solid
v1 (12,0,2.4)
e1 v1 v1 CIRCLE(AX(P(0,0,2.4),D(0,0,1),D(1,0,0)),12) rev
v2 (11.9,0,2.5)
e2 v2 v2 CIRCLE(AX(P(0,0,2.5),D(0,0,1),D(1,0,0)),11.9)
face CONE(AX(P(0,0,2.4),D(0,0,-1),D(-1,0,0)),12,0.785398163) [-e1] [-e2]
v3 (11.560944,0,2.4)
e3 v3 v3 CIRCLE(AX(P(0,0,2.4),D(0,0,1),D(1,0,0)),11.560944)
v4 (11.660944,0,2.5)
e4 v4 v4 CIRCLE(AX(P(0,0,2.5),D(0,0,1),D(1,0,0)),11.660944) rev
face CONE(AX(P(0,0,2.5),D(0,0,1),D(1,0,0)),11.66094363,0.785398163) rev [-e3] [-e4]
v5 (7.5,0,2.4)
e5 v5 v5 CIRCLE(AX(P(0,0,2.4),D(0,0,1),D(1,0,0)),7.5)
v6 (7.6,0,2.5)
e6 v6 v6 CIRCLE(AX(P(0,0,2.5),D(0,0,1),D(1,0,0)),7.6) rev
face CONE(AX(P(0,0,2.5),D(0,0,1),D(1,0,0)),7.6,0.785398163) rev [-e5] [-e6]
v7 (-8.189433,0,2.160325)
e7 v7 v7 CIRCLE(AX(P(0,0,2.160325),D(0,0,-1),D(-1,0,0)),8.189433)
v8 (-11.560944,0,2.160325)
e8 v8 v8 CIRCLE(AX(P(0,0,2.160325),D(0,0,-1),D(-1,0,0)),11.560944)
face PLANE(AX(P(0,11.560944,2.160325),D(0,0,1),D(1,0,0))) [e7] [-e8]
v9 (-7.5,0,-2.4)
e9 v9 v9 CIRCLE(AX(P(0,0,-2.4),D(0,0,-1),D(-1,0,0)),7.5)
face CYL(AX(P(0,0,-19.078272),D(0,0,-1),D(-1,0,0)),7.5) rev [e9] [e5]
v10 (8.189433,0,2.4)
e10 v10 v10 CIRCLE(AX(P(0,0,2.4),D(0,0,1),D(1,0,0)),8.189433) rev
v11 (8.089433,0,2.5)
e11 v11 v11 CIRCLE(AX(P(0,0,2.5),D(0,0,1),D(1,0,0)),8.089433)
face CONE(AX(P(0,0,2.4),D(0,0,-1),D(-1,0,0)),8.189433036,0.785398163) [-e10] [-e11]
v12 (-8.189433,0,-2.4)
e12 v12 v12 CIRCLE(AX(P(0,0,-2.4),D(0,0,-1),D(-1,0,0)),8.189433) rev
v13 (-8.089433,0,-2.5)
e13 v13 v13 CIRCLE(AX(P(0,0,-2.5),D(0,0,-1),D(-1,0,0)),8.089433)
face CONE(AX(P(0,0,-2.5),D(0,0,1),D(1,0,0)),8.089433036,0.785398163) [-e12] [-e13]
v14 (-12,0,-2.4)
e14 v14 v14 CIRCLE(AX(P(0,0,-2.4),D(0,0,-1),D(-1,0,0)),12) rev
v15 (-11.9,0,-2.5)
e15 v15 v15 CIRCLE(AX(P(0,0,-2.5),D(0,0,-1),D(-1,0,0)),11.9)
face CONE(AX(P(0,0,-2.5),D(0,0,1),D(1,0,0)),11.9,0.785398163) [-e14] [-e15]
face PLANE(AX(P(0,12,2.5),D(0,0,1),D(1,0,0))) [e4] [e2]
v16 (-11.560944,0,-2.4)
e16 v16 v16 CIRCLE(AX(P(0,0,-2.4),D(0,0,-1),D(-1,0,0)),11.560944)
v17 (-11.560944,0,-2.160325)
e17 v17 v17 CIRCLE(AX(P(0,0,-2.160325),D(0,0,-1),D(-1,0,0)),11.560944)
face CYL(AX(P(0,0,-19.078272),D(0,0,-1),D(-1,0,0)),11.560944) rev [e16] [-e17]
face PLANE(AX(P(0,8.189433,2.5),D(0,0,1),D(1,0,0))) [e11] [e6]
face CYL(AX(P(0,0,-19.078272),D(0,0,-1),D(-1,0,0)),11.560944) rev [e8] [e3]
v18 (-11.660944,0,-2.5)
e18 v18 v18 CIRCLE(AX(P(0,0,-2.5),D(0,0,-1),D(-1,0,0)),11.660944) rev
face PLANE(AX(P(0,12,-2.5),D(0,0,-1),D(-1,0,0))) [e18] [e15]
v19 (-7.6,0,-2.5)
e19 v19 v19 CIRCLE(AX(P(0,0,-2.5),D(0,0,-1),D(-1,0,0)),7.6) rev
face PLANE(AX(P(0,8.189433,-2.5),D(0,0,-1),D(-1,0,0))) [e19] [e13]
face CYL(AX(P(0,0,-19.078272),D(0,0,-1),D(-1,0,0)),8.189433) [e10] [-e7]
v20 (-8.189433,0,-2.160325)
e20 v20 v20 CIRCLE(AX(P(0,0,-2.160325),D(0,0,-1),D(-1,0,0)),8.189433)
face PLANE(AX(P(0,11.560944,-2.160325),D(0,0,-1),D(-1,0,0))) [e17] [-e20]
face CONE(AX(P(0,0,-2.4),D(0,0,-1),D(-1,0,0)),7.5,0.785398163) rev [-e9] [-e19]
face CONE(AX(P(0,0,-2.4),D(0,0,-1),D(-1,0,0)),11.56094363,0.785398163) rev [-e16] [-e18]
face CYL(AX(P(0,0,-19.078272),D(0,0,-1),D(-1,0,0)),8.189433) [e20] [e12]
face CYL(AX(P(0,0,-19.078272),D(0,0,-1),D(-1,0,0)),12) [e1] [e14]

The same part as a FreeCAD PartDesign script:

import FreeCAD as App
import Part
import Sketcher

V = App.Vector
Q = App.Units.Quantity


def edges_at(feature, points):
    """Names of the edges that pass closest to the given points."""
    edges = feature.Shape.Edges
    near = lambda p: min(range(len(edges)), key=lambda i: edges[i].distToShape(Part.Vertex(*p))[0])
    return sorted({f"Edge{near(p) + 1}" for p in points})

doc = App.newDocument("Part")
body = doc.addObject("PartDesign::Body", "Body")

# Sketch on YZ plane
sketch1 = body.newObject("Sketcher::SketchObject", "Sketch")
sketch1.AttachmentSupport = (doc.getObject("YZ_Plane"), [""])
sketch1.MapMode = "FlatFace"
sketch1.addGeometry(Part.LineSegment(V(12, -2.5, 0), V(12, 2.5, 0)), False)
sketch1.addGeometry(Part.LineSegment(V(12, 2.5, 0), V(11.560944, 2.5, 0)), False)
sketch1.addGeometry(Part.LineSegment(V(11.560944, 2.5, 0), V(11.560944, 2.160325, 0)), False)
sketch1.addGeometry(Part.LineSegment(V(11.560944, 2.160325, 0), V(8.189433, 2.160325, 0)), False)
sketch1.addGeometry(Part.LineSegment(V(8.189433, 2.160325, 0), V(8.189433, 2.5, 0)), False)
sketch1.addGeometry(Part.LineSegment(V(8.189433, 2.5, 0), V(7.5, 2.5, 0)), False)
sketch1.addGeometry(Part.LineSegment(V(7.5, 2.5, 0), V(7.5, -2.5, 0)), False)
sketch1.addGeometry(Part.LineSegment(V(7.5, -2.5, 0), V(8.189433, -2.5, 0)), False)
sketch1.addGeometry(Part.LineSegment(V(8.189433, -2.5, 0), V(8.189433, -2.160325, 0)), False)
sketch1.addGeometry(Part.LineSegment(V(8.189433, -2.160325, 0), V(11.560944, -2.160325, 0)), False)
sketch1.addGeometry(Part.LineSegment(V(11.560944, -2.160325, 0), V(11.560944, -2.5, 0)), False)
sketch1.addGeometry(Part.LineSegment(V(11.560944, -2.5, 0), V(12, -2.5, 0)), False)
sketch1.addConstraint(Sketcher.Constraint("Coincident", 0, 2, 1, 1))
sketch1.addConstraint(Sketcher.Constraint("Coincident", 1, 2, 2, 1))
sketch1.addConstraint(Sketcher.Constraint("Coincident", 2, 2, 3, 1))
sketch1.addConstraint(Sketcher.Constraint("Coincident", 3, 2, 4, 1))
sketch1.addConstraint(Sketcher.Constraint("Coincident", 4, 2, 5, 1))
sketch1.addConstraint(Sketcher.Constraint("Coincident", 5, 2, 6, 1))
sketch1.addConstraint(Sketcher.Constraint("Coincident", 6, 2, 7, 1))
sketch1.addConstraint(Sketcher.Constraint("Coincident", 7, 2, 8, 1))
sketch1.addConstraint(Sketcher.Constraint("Coincident", 8, 2, 9, 1))
sketch1.addConstraint(Sketcher.Constraint("Coincident", 9, 2, 10, 1))
sketch1.addConstraint(Sketcher.Constraint("Coincident", 10, 2, 11, 1))
sketch1.addConstraint(Sketcher.Constraint("Coincident", 11, 2, 0, 1))
sketch1.addConstraint(Sketcher.Constraint("Vertical", 0))
sketch1.addConstraint(Sketcher.Constraint("Horizontal", 1))
sketch1.addConstraint(Sketcher.Constraint("Vertical", 2))
sketch1.addConstraint(Sketcher.Constraint("Horizontal", 3))
sketch1.addConstraint(Sketcher.Constraint("Vertical", 4))
sketch1.addConstraint(Sketcher.Constraint("Horizontal", 5))
sketch1.addConstraint(Sketcher.Constraint("Vertical", 6))
sketch1.addConstraint(Sketcher.Constraint("Horizontal", 7))
sketch1.addConstraint(Sketcher.Constraint("Vertical", 8))
sketch1.addConstraint(Sketcher.Constraint("Horizontal", 9))
sketch1.addConstraint(Sketcher.Constraint("Vertical", 10))
sketch1.addConstraint(Sketcher.Constraint("Horizontal", 11))
sketch1.addConstraint(Sketcher.Constraint("Symmetric", 4, 2, 7, 2, -1))
sketch1.addConstraint(Sketcher.Constraint("Symmetric", 2, 2, 9, 2, -1))
sketch1.addConstraint(Sketcher.Constraint("Horizontal", 1, 2, 4, 2))
sketch1.addConstraint(Sketcher.Constraint("Horizontal", 7, 2, 10, 2))
sketch1.addConstraint(Sketcher.Constraint("DistanceY", 0, 1, 0, 2, Q("5 mm")))
sketch1.addConstraint(Sketcher.Constraint("DistanceX", -1, 1, 0, 2, Q("12 mm")))
sketch1.addConstraint(Sketcher.Constraint("DistanceX", -1, 1, 5, 2, Q("7.5 mm")))
sketch1.addConstraint(Sketcher.Constraint("DistanceX", 3, 2, 3, 1, Q("3.371511 mm")))
sketch1.addConstraint(Sketcher.Constraint("DistanceX", 1, 2, 1, 1, Q("0.439056 mm")))
sketch1.addConstraint(Sketcher.Constraint("DistanceY", 2, 2, 2, 1, Q("0.339675 mm")))
revolution = body.newObject("PartDesign::Revolution", "Revolution")
revolution.Profile = sketch1
revolution.ReferenceAxis = (sketch1, ["V_Axis"])
revolution.Angle = 360
doc.recompute()

chamfer = body.newObject("PartDesign::Chamfer", "Chamfer")
chamfer.Base = (revolution, edges_at(revolution, [
    (11.561, 0, 2.5),
    (12, 0, 2.5),
    (12, 0, -2.5),
    (11.561, 0, -2.5),
    (8.189, 0, -2.5),
    (7.5, 0, -2.5),
    (7.5, 0, 2.5),
    (8.189, 0, 2.5),
]))
chamfer.Size = 0.1

doc.recompute()
